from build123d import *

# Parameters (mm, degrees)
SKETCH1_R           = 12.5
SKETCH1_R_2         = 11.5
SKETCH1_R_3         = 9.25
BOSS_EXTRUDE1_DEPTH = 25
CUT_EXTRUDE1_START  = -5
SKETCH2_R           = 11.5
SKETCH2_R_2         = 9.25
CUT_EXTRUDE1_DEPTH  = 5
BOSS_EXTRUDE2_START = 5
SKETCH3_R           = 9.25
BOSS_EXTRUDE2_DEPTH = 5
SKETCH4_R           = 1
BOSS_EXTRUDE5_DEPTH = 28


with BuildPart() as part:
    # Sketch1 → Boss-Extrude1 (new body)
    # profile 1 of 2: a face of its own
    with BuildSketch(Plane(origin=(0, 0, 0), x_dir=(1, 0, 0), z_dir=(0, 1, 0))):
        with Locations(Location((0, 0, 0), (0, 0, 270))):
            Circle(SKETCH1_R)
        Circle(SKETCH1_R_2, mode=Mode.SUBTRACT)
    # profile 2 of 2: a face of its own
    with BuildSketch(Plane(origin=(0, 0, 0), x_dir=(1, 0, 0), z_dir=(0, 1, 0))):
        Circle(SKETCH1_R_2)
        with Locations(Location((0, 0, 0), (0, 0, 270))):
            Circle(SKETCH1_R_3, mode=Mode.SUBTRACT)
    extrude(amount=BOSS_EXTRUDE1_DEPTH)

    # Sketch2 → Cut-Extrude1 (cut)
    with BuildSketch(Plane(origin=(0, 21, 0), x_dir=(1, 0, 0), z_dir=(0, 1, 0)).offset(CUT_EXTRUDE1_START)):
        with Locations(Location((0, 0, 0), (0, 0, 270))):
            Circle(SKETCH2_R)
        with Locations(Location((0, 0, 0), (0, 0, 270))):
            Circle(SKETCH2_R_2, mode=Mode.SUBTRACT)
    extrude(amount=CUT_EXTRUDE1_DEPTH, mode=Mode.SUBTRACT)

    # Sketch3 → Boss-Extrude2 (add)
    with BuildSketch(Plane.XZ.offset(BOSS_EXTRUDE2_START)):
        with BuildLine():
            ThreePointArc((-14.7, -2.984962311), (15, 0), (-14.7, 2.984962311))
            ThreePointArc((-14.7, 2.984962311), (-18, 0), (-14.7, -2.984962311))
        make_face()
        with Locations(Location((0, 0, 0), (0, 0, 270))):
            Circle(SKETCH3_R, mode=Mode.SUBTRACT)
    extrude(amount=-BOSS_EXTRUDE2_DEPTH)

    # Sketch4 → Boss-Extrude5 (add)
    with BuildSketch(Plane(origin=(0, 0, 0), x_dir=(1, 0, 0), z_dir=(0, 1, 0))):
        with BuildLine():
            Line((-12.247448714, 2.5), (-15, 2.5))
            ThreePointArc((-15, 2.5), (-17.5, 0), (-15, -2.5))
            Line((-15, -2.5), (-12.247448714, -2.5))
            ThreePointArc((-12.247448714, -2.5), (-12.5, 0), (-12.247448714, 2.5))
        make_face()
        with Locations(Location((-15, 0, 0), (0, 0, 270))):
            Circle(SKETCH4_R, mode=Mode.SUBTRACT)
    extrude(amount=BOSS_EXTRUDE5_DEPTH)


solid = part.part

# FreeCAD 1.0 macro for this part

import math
import FreeCAD as App
import Part
import Sketcher

doc = App.newDocument("Part")
body = doc.addObject("PartDesign::Body", "Body")

# Sketch on XZ plane
sketch1 = body.newObject("Sketcher::SketchObject", "Sketch")
sketch1.AttachmentSupport = (doc.getObject("XZ_Plane"), [""])
sketch1.MapMode = "FlatFace"
sketch1.addGeometry([
    Part.Circle(App.Vector(0, 0, 0), App.Vector(0, 0, 1), 12),
    Part.Circle(App.Vector(0, 0, 0), App.Vector(0, 0, 1), 9),
], False)
sketch1.addConstraint([
    Sketcher.Constraint("Coincident", 0, 3, -1, 1),
    Sketcher.Constraint("Coincident", 1, 3, -1, 1),
    Sketcher.Constraint("Diameter", 0, 25.0),
    Sketcher.Constraint("Diameter", 1, 18.5),
])
pad1 = body.newObject("PartDesign::Pad", "Pad")
pad1.Profile = sketch1
pad1.Length = 25
pad1.Reversed = True

# Sketch on XZ plane
sketch2 = body.newObject("Sketcher::SketchObject", "Sketch001")
sketch2.AttachmentSupport = (doc.getObject("XZ_Plane"), [""])
sketch2.MapMode = "FlatFace"
sketch2.AttachmentOffset = App.Placement(App.Vector(0, 0, -16), App.Rotation())
sketch2.addGeometry([
    Part.Circle(App.Vector(0, 0, 0), App.Vector(0, 0, 1), 12),
    Part.Circle(App.Vector(0, 0, 0), App.Vector(0, 0, 1), 9),
], False)
sketch2.addConstraint([
    Sketcher.Constraint("Coincident", 0, 3, -1, 1),
    Sketcher.Constraint("Coincident", 1, 3, -1, 1),
    Sketcher.Constraint("Diameter", 0, 23.0),
    Sketcher.Constraint("Diameter", 1, 18.5),
])
pocket1 = body.newObject("PartDesign::Pocket", "Pocket")
pocket1.Profile = sketch2
pocket1.Length = 5

# Sketch on XZ plane
sketch3 = body.newObject("Sketcher::SketchObject", "Sketch002")
sketch3.AttachmentSupport = (doc.getObject("XZ_Plane"), [""])
sketch3.MapMode = "FlatFace"
sketch3.AttachmentOffset = App.Placement(App.Vector(0, 0, 5), App.Rotation())
sketch3.addGeometry([
    Part.ArcOfCircle(Part.Circle(App.Vector(0, 0, 0), App.Vector(0, 0, 1), 15), math.radians(-169), math.radians(169)),
    Part.ArcOfCircle(Part.Circle(App.Vector(-15, 0, 0), App.Vector(0, 0, 1), 3), math.radians(84), math.radians(276)),
    Part.Circle(App.Vector(0, 0, 0), App.Vector(0, 0, 1), 9.2),
], False)
sketch3.addConstraint([
    Sketcher.Constraint("Coincident", 0, 1, 1, 2),
    Sketcher.Constraint("Coincident", 1, 1, 0, 2),
    Sketcher.Constraint("Coincident", 0, 3, -1, 1),
    Sketcher.Constraint("Coincident", 2, 3, -1, 1),
    Sketcher.Constraint("PointOnObject", 1, 3, -1),
    Sketcher.Constraint("Radius", 0, 15.0),
    Sketcher.Constraint("Radius", 1, 3.0),
    Sketcher.Constraint("Diameter", 2, 18.5),
    Sketcher.Constraint("DistanceX", 1, 3, -1, 1, 15.0),
])
pad2 = body.newObject("PartDesign::Pad", "Pad001")
pad2.Profile = sketch3
pad2.Length = 5
pad2.Reversed = True

# Sketch on XZ plane
sketch4 = body.newObject("Sketcher::SketchObject", "Sketch003")
sketch4.AttachmentSupport = (doc.getObject("XZ_Plane"), [""])
sketch4.MapMode = "FlatFace"
sketch4.addGeometry([
    Part.LineSegment(App.Vector(-12.2, -2.5, 0), App.Vector(-15, -2.5, 0)),  # 0
    Part.ArcOfCircle(Part.Circle(App.Vector(-15, 0, 0), App.Vector(0, 0, 1), 2.5), math.radians(90), math.radians(270)),  # 1
    Part.LineSegment(App.Vector(-15, 2.5, 0), App.Vector(-12.2, 2.5, 0)),  # 2
    Part.ArcOfCircle(Part.Circle(App.Vector(0, 0, 0), App.Vector(0, 0, 1), 12.5), math.radians(168), math.radians(192)),  # 3
    Part.Circle(App.Vector(-15, 0, 0), App.Vector(0, 0, 1), 1),  # 4
], False)
sketch4.addConstraint([
    Sketcher.Constraint("Tangent", 0, 2, 1, 2),
    Sketcher.Constraint("Tangent", 1, 1, 2, 1),
    Sketcher.Constraint("Coincident", 2, 2, 3, 1),
    Sketcher.Constraint("Coincident", 3, 2, 0, 1),
    Sketcher.Constraint("Horizontal", 0),
    Sketcher.Constraint("Horizontal", 2),
    Sketcher.Constraint("Coincident", 3, 3, -1, 1),
    Sketcher.Constraint("Coincident", 4, 3, 1, 3),
    Sketcher.Constraint("PointOnObject", 1, 3, -1),
    Sketcher.Constraint("Diameter", 4, 2.0),
    Sketcher.Constraint("Radius", 1, 2.5),
    Sketcher.Constraint("Radius", 3, 12.5),
    Sketcher.Constraint("DistanceX", 1, 3, -1, 1, 15.0),
])
pad3 = body.newObject("PartDesign::Pad", "Pad002")
pad3.Profile = sketch4
pad3.Length = 28
pad3.Reversed = True

doc.recompute()
